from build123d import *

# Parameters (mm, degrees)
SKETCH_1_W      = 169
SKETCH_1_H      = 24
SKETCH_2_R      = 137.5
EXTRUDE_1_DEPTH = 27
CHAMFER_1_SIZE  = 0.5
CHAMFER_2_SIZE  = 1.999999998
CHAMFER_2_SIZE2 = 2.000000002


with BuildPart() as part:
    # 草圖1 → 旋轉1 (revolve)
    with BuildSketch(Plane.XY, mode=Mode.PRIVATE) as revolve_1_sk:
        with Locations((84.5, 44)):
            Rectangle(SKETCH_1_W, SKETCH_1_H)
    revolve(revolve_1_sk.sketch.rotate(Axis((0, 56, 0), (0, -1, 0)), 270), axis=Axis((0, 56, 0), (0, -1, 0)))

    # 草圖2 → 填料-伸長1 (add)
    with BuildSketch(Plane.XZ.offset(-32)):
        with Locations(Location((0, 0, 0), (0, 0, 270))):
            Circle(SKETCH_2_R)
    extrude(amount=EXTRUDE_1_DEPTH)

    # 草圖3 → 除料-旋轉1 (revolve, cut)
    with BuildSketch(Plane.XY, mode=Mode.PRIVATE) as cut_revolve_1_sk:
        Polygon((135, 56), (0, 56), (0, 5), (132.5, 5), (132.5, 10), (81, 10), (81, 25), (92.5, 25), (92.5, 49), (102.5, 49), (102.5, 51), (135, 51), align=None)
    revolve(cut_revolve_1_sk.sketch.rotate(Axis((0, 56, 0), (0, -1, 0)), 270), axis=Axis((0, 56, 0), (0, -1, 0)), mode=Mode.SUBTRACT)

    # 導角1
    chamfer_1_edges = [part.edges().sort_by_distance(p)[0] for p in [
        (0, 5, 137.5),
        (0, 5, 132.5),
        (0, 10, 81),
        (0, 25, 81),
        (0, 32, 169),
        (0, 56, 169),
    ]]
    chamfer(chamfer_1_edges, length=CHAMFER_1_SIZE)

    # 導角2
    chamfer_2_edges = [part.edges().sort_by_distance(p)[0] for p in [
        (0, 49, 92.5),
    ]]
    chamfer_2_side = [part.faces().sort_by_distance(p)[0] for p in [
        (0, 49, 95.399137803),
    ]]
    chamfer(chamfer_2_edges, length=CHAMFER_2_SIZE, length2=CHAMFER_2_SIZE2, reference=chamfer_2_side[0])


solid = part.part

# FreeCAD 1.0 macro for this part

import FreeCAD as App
import Part
import Sketcher

V = App.Vector


def edges_at(feature, points):
    """Names of the edges that pass closest to the given points."""
    edges = feature.Shape.Edges
    near = lambda p: min(range(len(edges)), key=lambda i: edges[i].distToShape(Part.Vertex(*p))[0])
    return sorted({f"Edge{near(p) + 1}" for p in points})


def add_polygon(sketch, points):
    """Adds a closed chain of lines whose ends are joined by coincident constraints."""
    first, n = sketch.GeometryCount, len(points)
    for a, b in zip(points, points[1:] + points[:1]):
        sketch.addGeometry(Part.LineSegment(App.Vector(*a, 0), App.Vector(*b, 0)), False)
    for i in range(n):
        sketch.addConstraint(Sketcher.Constraint("Coincident", first + i, 2, first + (i + 1) % n, 1))

doc = App.newDocument("Part")
body = doc.addObject("PartDesign::Body", "Body")

# Sketch on XY plane
sketch1 = body.newObject("Sketcher::SketchObject", "Sketch")
sketch1.AttachmentSupport = (doc.getObject("XY_Plane"), [""])
sketch1.MapMode = "FlatFace"
add_polygon(sketch1, [(0, 56), (0, 32), (169, 32), (169, 56)])  # lines 0-3
sketch1.addConstraint([
    Sketcher.Constraint("Vertical", 0),
    Sketcher.Constraint("Horizontal", 1),
    Sketcher.Constraint("Vertical", 2),
    Sketcher.Constraint("Horizontal", 3),
    Sketcher.Constraint("PointOnObject", 0, 2, -2),
    Sketcher.Constraint("DistanceX", 1, 1, 1, 2, 169.0),
    Sketcher.Constraint("DistanceY", 0, 2, 0, 1, 24.0),
    Sketcher.Constraint("DistanceY", -1, 1, 0, 2, 32.0),
])
revolution = body.newObject("PartDesign::Revolution", "Revolution")
revolution.Profile = sketch1
revolution.ReferenceAxis = (sketch1, ["V_Axis"])
revolution.Angle = 360

# Sketch on XZ plane
sketch2 = body.newObject("Sketcher::SketchObject", "Sketch001")
sketch2.AttachmentSupport = (doc.getObject("XZ_Plane"), [""])
sketch2.MapMode = "FlatFace"
sketch2.AttachmentOffset = App.Placement(V(0, 0, -32), App.Rotation())
sketch2.addGeometry(Part.Circle(V(0, 0, 0), V(0, 0, 1), 138), False)
sketch2.addConstraint([
    Sketcher.Constraint("Coincident", 0, 3, -1, 1),
    Sketcher.Constraint("Diameter", 0, 275.0),
])
pad1 = body.newObject("PartDesign::Pad", "Pad")
pad1.Profile = sketch2
pad1.Length = 27

# Sketch on XY plane
sketch3 = body.newObject("Sketcher::SketchObject", "Sketch002")
sketch3.AttachmentSupport = (doc.getObject("XY_Plane"), [""])
sketch3.MapMode = "FlatFace"
add_polygon(sketch3, [(135, 56), (0, 56), (0, 5), (132.5, 5), (132.5, 10), (81, 10), (81, 25), (92.5, 25), (92.5, 49), (102.5, 49), (102.5, 51), (135, 51)])  # lines 0-11
sketch3.addConstraint([
    Sketcher.Constraint("Horizontal", 0),
    Sketcher.Constraint("Vertical", 1),
    Sketcher.Constraint("Horizontal", 2),
    Sketcher.Constraint("Vertical", 3),
    Sketcher.Constraint("Horizontal", 4),
    Sketcher.Constraint("Vertical", 5),
    Sketcher.Constraint("Horizontal", 6),
    Sketcher.Constraint("Vertical", 7),
    Sketcher.Constraint("Horizontal", 8),
    Sketcher.Constraint("Vertical", 9),
    Sketcher.Constraint("Horizontal", 10),
    Sketcher.Constraint("Vertical", 11),
    Sketcher.Constraint("PointOnObject", 0, 2, -2),
    Sketcher.Constraint("Equal", 3, 11),
    Sketcher.Constraint("DistanceX", 0, 2, 0, 1, 135.0),
    Sketcher.Constraint("DistanceX", 8, 1, 8, 2, 10.0),
    Sketcher.Constraint("DistanceY", 1, 2, 1, 1, 51.0),
    Sketcher.Constraint("DistanceY", 3, 1, 3, 2, 5.0),
    Sketcher.Constraint("DistanceY", 5, 1, 5, 2, 15.0),
    Sketcher.Constraint("DistanceY", 7, 1, 7, 2, 24.0),
    Sketcher.Constraint("DistanceX", 2, 1, 2, 2, 132.5),
    Sketcher.Constraint("DistanceX", 4, 2, 4, 1, 51.5),
    Sketcher.Constraint("DistanceX", 6, 1, 6, 2, 11.5),
    Sketcher.Constraint("DistanceY", -1, 1, 0, 2, 56.0),
])
groove = body.newObject("PartDesign::Groove", "Groove")
groove.Profile = sketch3
groove.ReferenceAxis = (sketch3, ["V_Axis"])
groove.Angle = 360
doc.recompute()

chamfer = body.newObject("PartDesign::Chamfer", "Chamfer")
chamfer.Base = (groove, edges_at(groove, [
    (0, 5, 137.5),
    (0, 5, 132.5),
    (0, 10, 81),
    (0, 25, 81),
    (0, 32, 169),
    (0, 56, 169),
]))
chamfer.Size = 0.5
doc.recompute()

chamfer2 = body.newObject("PartDesign::Chamfer", "Chamfer001")
chamfer2.Base = (chamfer, edges_at(chamfer, [(0, 49, 92.5)]))
chamfer2.ChamferType = "Two distances"
chamfer2.Size = 2
chamfer2.Size2 = 2

doc.recompute()
